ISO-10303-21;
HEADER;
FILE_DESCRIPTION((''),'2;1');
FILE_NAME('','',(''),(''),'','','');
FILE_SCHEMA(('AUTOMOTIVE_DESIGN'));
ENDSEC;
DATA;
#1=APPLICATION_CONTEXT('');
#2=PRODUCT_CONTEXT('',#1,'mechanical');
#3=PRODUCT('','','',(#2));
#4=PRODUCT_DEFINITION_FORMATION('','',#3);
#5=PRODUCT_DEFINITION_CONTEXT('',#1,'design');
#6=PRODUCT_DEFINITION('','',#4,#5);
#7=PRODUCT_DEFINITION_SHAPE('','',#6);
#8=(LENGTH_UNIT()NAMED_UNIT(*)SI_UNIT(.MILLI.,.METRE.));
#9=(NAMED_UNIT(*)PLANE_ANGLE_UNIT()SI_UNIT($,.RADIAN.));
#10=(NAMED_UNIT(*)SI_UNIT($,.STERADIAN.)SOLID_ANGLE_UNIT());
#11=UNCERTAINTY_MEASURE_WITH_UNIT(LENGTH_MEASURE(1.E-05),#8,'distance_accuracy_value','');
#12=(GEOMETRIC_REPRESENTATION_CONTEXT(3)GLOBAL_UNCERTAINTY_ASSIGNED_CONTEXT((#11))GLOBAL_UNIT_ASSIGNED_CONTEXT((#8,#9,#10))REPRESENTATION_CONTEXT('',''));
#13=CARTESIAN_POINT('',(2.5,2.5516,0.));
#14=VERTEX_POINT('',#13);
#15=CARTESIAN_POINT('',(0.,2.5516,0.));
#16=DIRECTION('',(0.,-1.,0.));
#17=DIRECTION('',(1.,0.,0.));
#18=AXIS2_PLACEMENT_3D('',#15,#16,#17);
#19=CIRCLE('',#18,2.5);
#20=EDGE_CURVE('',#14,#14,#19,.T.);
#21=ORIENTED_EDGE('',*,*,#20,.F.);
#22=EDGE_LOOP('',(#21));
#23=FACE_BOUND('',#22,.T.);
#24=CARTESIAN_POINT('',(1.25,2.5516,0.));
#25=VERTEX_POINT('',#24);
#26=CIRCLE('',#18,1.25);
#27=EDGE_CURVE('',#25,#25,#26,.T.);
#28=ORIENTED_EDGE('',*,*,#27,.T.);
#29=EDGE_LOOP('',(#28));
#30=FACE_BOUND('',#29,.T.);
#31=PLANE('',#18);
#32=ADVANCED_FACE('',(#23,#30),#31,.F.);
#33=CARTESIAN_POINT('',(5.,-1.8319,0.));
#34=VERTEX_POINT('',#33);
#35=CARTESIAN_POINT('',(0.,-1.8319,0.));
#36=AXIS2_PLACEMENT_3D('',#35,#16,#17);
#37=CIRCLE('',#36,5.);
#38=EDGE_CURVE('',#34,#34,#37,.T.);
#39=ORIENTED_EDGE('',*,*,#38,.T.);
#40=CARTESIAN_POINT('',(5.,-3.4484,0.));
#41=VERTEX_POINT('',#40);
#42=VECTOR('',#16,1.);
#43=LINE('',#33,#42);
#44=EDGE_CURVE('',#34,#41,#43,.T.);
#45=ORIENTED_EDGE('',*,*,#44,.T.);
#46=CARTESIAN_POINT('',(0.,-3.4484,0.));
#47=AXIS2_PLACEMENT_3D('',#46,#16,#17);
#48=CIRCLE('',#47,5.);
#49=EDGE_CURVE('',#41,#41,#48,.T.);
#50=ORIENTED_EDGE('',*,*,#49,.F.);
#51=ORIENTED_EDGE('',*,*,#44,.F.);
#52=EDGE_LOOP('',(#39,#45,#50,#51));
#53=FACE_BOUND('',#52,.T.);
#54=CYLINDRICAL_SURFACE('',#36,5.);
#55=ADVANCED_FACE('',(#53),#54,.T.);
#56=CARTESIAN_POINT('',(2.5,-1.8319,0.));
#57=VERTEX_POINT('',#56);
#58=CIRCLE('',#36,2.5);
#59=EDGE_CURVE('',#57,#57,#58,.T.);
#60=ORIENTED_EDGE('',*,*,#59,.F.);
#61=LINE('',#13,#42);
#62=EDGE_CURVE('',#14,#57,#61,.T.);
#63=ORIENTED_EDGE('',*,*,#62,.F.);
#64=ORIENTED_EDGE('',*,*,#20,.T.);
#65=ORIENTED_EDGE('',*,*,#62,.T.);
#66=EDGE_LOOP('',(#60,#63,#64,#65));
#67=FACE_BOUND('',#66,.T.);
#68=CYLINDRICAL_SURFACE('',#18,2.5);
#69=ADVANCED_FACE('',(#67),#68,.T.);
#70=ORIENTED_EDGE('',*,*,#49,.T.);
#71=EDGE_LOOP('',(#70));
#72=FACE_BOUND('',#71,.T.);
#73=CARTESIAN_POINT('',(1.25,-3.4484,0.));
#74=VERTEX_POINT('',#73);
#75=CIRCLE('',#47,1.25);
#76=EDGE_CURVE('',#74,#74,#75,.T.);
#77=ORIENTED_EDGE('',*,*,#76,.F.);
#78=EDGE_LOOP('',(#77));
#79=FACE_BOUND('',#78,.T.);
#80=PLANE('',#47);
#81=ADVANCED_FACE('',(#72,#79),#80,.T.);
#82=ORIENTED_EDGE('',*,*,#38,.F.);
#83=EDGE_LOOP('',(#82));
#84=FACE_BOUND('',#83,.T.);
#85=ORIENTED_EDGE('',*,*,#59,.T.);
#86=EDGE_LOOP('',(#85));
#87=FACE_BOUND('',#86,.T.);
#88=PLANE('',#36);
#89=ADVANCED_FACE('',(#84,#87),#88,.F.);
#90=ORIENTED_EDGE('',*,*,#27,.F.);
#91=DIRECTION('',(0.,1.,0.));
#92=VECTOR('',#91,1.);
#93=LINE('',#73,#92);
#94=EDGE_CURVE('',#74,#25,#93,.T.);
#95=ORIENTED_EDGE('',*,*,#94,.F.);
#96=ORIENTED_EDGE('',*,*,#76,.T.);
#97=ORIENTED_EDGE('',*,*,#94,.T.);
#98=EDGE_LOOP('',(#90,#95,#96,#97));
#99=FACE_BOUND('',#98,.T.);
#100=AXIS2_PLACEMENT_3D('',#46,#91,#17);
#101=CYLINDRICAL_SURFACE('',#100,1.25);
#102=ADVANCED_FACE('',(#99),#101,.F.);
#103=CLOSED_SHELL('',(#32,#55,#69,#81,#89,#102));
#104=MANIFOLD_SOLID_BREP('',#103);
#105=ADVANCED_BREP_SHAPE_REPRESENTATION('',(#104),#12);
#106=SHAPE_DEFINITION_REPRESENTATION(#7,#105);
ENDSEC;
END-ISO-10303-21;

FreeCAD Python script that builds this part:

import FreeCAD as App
import Part
import Sketcher
Q = App.Units.Quantity


def add_polygon(sketch, points):
    """Adds a closed chain of lines whose ends are joined by coincident constraints."""
    first, n = sketch.GeometryCount, len(points)
    for a, b in zip(points, points[1:] + points[:1]):
        sketch.addGeometry(Part.LineSegment(App.Vector(*a, 0), App.Vector(*b, 0)), False)
    for i in range(n):
        sketch.addConstraint(Sketcher.Constraint("Coincident", first + i, 2, first + (i + 1) % n, 1))

doc = App.newDocument("Part")
body = doc.addObject("PartDesign::Body", "Body")

# Sketch on XY plane
sketch1 = body.newObject("Sketcher::SketchObject", "Sketch")
sketch1.AttachmentSupport = (doc.getObject("XY_Plane"), [""])
sketch1.MapMode = "FlatFace"
add_polygon(sketch1, [(1.25, 2.5516), (1.25, -3.4484), (5, -3.4484), (5, -1.8319), (2.5, -1.8319), (2.5, 2.5516)])  # lines 0-5
sketch1.addConstraint(Sketcher.Constraint("Vertical", 0))
sketch1.addConstraint(Sketcher.Constraint("Horizontal", 1))
sketch1.addConstraint(Sketcher.Constraint("Vertical", 2))
sketch1.addConstraint(Sketcher.Constraint("Horizontal", 3))
sketch1.addConstraint(Sketcher.Constraint("Vertical", 4))
sketch1.addConstraint(Sketcher.Constraint("Horizontal", 5))
sketch1.addConstraint(Sketcher.Constraint("DistanceY", 0, 2, 0, 1, Q("6 mm")))
sketch1.addConstraint(Sketcher.Constraint("DistanceX", -1, 1, 1, 2, Q("5 mm")))
sketch1.addConstraint(Sketcher.Constraint("DistanceX", 5, 2, 5, 1, Q("1.25 mm")))
sketch1.addConstraint(Sketcher.Constraint("DistanceX", -1, 1, 0, 2, Q("1.25 mm")))
sketch1.addConstraint(Sketcher.Constraint("DistanceY", 2, 1, 2, 2, Q("1.6165 mm")))
sketch1.addConstraint(Sketcher.Constraint("DistanceY", 2, 2, -1, 1, Q("1.832 mm")))
revolution = body.newObject("PartDesign::Revolution", "Revolution")
revolution.Profile = sketch1
revolution.ReferenceAxis = (sketch1, ["V_Axis"])
revolution.Angle = 360

doc.recompute()
